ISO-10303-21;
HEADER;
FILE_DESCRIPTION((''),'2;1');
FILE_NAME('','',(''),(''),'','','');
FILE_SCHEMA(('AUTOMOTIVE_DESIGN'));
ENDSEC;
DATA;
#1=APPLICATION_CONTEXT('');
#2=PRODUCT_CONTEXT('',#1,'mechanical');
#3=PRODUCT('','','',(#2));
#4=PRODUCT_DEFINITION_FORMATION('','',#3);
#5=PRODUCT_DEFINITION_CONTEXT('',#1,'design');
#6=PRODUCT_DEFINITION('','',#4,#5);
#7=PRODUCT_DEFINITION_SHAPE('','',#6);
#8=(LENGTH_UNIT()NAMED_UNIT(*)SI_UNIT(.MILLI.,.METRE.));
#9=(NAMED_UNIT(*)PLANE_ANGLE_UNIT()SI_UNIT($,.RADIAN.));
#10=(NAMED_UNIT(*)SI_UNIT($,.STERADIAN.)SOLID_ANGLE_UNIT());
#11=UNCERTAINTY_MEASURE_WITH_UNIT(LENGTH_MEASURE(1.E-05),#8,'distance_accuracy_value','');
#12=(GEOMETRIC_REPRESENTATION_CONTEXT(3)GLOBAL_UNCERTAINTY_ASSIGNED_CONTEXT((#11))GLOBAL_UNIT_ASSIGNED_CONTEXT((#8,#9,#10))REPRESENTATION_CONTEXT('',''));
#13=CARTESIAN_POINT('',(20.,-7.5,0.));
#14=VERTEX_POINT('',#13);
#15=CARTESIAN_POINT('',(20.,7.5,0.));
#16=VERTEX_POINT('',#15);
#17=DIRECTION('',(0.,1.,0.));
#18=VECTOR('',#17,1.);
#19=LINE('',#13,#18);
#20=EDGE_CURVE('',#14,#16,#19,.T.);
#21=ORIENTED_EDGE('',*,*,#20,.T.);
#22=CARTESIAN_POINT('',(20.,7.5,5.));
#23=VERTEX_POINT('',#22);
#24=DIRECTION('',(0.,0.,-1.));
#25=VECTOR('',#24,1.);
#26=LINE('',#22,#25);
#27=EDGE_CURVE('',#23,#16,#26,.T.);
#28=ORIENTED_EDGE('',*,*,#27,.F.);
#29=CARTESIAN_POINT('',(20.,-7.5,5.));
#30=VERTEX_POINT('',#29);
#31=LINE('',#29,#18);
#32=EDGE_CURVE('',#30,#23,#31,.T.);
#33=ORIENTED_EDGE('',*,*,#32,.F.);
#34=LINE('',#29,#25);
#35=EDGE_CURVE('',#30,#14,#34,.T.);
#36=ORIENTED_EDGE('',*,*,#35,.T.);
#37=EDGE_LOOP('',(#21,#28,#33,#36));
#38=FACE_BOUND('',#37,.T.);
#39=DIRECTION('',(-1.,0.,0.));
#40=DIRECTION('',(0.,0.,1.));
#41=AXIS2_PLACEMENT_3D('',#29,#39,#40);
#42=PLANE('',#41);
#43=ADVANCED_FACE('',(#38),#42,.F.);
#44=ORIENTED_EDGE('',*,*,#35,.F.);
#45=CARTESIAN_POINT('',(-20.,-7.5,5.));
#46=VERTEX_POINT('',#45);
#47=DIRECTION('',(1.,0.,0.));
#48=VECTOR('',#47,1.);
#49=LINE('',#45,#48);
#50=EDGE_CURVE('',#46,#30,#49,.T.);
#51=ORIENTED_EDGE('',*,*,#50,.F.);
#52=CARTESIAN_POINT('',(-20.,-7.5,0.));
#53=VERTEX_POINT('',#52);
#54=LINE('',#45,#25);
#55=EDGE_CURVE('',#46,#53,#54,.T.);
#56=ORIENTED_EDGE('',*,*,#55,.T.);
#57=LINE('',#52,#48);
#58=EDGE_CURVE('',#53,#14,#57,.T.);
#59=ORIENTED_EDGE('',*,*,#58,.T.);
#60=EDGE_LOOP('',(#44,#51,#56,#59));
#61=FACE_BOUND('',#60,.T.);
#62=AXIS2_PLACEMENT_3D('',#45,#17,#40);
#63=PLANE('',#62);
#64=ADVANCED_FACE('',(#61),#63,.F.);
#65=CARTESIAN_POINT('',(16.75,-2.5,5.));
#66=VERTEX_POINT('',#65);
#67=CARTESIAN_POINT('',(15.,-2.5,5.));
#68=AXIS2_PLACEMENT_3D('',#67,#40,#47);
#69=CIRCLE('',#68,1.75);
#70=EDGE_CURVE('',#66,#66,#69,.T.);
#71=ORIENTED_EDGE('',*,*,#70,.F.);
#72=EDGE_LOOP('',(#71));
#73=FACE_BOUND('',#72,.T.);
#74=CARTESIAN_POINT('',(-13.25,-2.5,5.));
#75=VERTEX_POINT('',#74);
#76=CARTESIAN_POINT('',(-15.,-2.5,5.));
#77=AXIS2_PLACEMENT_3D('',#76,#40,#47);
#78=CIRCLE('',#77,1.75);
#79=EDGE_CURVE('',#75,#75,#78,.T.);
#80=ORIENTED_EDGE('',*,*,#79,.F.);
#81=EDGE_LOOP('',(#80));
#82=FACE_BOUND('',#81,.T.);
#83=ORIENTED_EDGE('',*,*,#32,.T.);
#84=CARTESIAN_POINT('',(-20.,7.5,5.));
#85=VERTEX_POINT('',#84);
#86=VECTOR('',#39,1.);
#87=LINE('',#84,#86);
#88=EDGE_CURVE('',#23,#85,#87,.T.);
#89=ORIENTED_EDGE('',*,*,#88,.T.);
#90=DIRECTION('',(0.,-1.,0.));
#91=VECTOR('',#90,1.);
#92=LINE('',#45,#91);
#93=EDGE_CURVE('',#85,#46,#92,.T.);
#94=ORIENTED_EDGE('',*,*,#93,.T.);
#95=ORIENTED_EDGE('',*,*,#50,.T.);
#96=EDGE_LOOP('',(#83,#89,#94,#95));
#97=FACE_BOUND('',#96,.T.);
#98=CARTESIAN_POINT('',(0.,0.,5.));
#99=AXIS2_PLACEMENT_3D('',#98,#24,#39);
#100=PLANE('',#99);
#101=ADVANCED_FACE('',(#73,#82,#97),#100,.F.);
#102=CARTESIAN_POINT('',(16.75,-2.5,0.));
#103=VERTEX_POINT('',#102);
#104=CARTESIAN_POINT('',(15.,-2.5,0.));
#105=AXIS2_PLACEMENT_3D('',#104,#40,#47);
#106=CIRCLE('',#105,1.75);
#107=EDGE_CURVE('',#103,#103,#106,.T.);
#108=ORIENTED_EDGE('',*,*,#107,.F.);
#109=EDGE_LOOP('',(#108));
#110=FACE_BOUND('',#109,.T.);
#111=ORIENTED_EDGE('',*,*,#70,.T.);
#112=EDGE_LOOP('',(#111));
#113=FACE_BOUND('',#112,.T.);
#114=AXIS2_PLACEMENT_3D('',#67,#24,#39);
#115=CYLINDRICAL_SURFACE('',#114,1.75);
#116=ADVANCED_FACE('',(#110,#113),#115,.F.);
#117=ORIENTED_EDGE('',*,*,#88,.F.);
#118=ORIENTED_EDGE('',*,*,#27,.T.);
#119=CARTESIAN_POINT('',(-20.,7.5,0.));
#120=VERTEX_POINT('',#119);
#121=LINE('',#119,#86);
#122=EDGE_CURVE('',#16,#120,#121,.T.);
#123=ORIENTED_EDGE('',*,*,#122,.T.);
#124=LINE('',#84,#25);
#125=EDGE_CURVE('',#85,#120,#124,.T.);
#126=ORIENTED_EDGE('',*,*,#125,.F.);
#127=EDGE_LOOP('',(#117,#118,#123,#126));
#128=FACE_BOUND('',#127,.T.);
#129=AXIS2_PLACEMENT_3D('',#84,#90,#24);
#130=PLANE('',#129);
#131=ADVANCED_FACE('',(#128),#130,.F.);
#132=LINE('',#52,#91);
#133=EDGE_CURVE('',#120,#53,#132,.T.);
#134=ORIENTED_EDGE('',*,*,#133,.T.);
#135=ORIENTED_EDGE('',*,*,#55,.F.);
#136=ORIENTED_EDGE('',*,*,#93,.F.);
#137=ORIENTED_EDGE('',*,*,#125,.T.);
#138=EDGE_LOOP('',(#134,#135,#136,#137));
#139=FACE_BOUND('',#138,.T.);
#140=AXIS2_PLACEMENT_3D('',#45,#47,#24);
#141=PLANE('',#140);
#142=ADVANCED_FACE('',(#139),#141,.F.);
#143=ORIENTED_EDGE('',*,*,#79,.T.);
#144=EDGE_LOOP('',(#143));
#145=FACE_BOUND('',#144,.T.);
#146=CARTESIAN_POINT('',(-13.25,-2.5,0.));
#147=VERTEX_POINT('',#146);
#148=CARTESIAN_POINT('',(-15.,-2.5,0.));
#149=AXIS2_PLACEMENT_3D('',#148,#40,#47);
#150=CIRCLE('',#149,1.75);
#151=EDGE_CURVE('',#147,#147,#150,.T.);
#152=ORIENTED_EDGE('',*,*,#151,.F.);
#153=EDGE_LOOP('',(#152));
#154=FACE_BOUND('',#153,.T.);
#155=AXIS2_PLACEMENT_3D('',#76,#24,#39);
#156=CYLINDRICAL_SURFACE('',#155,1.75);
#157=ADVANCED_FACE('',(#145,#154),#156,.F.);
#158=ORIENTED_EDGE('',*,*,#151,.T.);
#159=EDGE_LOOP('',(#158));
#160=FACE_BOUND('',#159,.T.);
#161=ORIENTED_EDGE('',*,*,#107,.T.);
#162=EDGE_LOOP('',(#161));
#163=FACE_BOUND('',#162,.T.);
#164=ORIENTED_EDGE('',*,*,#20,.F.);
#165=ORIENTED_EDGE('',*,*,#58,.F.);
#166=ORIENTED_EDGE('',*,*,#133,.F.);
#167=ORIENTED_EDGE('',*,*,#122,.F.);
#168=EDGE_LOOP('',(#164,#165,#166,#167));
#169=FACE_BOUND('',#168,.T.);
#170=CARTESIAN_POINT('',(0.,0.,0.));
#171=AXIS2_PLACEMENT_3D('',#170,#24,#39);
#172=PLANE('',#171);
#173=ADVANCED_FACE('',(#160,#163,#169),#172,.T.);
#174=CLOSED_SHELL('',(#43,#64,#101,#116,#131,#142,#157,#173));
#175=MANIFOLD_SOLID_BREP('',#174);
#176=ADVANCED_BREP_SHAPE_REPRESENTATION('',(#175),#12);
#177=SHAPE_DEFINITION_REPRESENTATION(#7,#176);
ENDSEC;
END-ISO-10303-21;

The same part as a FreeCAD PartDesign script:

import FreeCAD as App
import Part
import Sketcher

V = App.Vector


def add_polygon(sketch, points):
    """Adds a closed chain of lines whose ends are joined by coincident constraints."""
    first, n = sketch.GeometryCount, len(points)
    for a, b in zip(points, points[1:] + points[:1]):
        sketch.addGeometry(Part.LineSegment(App.Vector(*a, 0), App.Vector(*b, 0)), False)
    for i in range(n):
        sketch.addConstraint(Sketcher.Constraint("Coincident", first + i, 2, first + (i + 1) % n, 1))

doc = App.newDocument("Part")
body = doc.addObject("PartDesign::Body", "Body")

sketch1 = doc.addObject("Sketcher::SketchObject", "Sketch")
body.addObject(sketch1)
sketch1.AttachmentSupport = (doc.XY_Plane, [""])
sketch1.MapMode = "FlatFace"
add_polygon(sketch1, [(-20, 7.5), (-20, -7.5), (20, -7.5), (20, 7.5)])
sketch1.addGeometry(Part.Circle(V(-15, -2.5, 0), V(0, 0, 1), 1.8), False)
sketch1.addGeometry(Part.Circle(V(15, -2.5, 0), V(0, 0, 1), 1.8), False)
sketch1.addConstraint([
    Sketcher.Constraint("Vertical", 0),
    Sketcher.Constraint("Horizontal", 1),
    Sketcher.Constraint("Vertical", 2),
    Sketcher.Constraint("Horizontal", 3),
    Sketcher.Constraint("Equal", 4, 5),
    Sketcher.Constraint("Symmetric", 0, 2, 2, 2, -1, 1),
    Sketcher.Constraint("Symmetric", 4, 3, 5, 3, -2),
    Sketcher.Constraint("Diameter", 4, 3.5),
    Sketcher.Constraint("DistanceX", 1, 1, 1, 2, 40.0),
    Sketcher.Constraint("DistanceY", 0, 2, 0, 1, 15.0),
    Sketcher.Constraint("DistanceX", 4, 3, -1, 1, 15.0),
    Sketcher.Constraint("DistanceY", 0, 2, 4, 3, 5.0),
])
pad1 = doc.addObject("PartDesign::Pad", "Pad")
body.addObject(pad1)
pad1.Profile = sketch1
pad1.Length = 5

doc.recompute()
